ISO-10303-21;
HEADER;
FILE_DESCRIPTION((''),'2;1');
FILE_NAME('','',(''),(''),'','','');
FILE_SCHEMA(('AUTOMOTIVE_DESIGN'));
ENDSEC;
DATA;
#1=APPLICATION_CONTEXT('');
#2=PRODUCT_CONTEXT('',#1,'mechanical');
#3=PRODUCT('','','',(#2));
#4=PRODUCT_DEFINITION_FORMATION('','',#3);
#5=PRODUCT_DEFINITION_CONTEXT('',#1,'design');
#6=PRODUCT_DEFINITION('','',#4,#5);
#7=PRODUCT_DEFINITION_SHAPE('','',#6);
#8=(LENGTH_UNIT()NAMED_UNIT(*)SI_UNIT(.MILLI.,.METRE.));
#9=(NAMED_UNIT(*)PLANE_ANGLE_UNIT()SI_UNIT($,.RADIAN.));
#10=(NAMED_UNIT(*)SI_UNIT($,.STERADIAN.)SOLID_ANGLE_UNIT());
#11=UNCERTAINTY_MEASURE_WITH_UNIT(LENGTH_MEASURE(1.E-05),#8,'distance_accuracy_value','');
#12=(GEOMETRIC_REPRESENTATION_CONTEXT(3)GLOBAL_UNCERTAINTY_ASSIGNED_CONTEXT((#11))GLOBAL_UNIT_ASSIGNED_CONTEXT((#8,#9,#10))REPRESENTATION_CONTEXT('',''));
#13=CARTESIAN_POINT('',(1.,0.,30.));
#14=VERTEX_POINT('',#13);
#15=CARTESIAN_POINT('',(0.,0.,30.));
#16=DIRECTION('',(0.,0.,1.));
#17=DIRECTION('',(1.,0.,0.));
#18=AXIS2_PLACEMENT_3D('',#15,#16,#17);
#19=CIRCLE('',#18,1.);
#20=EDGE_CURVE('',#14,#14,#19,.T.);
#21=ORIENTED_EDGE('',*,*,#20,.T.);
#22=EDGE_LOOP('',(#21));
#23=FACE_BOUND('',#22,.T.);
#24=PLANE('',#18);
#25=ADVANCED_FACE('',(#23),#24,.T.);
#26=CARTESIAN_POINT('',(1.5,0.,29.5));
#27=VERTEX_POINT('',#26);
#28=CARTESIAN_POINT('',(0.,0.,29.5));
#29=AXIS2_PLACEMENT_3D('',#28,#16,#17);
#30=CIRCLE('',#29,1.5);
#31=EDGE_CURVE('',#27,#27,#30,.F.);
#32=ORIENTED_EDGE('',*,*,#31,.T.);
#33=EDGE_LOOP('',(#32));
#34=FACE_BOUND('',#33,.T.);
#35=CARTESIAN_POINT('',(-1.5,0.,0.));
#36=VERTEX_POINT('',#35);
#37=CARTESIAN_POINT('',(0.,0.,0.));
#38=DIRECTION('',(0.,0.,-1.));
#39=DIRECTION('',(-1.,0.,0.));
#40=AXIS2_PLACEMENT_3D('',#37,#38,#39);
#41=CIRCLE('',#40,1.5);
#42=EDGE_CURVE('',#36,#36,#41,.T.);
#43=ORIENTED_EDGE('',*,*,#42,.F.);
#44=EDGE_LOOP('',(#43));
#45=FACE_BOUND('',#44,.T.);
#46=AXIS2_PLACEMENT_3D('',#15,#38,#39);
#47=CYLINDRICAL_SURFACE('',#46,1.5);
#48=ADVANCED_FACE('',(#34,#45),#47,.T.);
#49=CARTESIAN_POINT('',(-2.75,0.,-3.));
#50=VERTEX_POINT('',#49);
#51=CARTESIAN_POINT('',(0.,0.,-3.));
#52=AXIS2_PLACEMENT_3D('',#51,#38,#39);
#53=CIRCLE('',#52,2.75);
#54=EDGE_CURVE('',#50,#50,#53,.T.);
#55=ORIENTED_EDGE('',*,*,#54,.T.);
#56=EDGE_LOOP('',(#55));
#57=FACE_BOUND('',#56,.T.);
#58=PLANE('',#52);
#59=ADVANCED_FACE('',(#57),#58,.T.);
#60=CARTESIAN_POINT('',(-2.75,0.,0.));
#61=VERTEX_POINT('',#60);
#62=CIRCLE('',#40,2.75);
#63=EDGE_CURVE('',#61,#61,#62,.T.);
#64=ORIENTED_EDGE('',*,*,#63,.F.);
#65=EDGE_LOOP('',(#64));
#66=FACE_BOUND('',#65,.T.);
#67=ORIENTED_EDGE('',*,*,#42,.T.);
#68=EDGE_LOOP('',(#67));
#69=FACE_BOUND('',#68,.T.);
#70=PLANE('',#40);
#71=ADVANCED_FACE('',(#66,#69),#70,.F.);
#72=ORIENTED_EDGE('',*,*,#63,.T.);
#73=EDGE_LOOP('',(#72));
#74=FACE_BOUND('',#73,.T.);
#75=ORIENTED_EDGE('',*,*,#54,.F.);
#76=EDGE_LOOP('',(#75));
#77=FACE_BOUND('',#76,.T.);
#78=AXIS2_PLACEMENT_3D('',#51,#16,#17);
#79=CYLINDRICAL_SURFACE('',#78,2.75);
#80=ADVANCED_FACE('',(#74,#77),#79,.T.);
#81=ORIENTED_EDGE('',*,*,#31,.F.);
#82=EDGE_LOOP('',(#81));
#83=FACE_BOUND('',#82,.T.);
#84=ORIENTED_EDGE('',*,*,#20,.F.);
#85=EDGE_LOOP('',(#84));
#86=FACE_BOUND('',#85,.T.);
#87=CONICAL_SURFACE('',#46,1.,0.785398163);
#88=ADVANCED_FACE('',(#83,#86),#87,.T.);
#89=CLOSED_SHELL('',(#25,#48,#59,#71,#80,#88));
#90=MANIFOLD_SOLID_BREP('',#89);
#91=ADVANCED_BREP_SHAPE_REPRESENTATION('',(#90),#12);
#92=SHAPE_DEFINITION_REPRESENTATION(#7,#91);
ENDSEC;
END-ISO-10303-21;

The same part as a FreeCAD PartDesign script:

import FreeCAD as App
import Part
import Sketcher
from FreeCAD import Vector
Q = App.Units.Quantity


def edges_at(feature, points):
    """Names of the edges that pass closest to the given points."""
    edges = feature.Shape.Edges
    near = lambda p: min(range(len(edges)), key=lambda i: edges[i].distToShape(Part.Vertex(*p))[0])
    return sorted({f"Edge{near(p) + 1}" for p in points})

doc = App.newDocument("Part")
body = doc.addObject("PartDesign::Body", "Body")

# Sketch on XY plane
sketch1 = body.newObject("Sketcher::SketchObject", "Sketch")
sketch1.AttachmentSupport = (doc.getObject("XY_Plane"), [""])
sketch1.MapMode = "FlatFace"
sketch1.addGeometry(Part.Circle(Vector(0, 0, 0), Vector(0, 0, 1), 1.5), False)
sketch1.addConstraint([
    Sketcher.Constraint("Coincident", 0, 3, -1, 1),
    Sketcher.Constraint("Diameter", 0, Q("3 mm")),
])
pad1 = body.newObject("PartDesign::Pad", "Pad")
pad1.Profile = sketch1
pad1.Length = 30

# Sketch on XY plane
sketch2 = body.newObject("Sketcher::SketchObject", "Sketch001")
sketch2.AttachmentSupport = (doc.getObject("XY_Plane"), [""])
sketch2.MapMode = "FlatFace"
sketch2.addGeometry(Part.Circle(Vector(0, 0, 0), Vector(0, 0, 1), 2.8), False)
sketch2.addConstraint([
    Sketcher.Constraint("Coincident", 0, 3, -1, 1),
    Sketcher.Constraint("Diameter", 0, Q("5.5 mm")),
])
pad2 = body.newObject("PartDesign::Pad", "Pad001")
pad2.Profile = sketch2
pad2.Length = 3
pad2.Reversed = True
doc.recompute()

chamfer = body.newObject("PartDesign::Chamfer", "Chamfer")
chamfer.Base = (pad2, edges_at(pad2, [(-1.5, 0, 30)]))
chamfer.Size = 0.5

doc.recompute()
